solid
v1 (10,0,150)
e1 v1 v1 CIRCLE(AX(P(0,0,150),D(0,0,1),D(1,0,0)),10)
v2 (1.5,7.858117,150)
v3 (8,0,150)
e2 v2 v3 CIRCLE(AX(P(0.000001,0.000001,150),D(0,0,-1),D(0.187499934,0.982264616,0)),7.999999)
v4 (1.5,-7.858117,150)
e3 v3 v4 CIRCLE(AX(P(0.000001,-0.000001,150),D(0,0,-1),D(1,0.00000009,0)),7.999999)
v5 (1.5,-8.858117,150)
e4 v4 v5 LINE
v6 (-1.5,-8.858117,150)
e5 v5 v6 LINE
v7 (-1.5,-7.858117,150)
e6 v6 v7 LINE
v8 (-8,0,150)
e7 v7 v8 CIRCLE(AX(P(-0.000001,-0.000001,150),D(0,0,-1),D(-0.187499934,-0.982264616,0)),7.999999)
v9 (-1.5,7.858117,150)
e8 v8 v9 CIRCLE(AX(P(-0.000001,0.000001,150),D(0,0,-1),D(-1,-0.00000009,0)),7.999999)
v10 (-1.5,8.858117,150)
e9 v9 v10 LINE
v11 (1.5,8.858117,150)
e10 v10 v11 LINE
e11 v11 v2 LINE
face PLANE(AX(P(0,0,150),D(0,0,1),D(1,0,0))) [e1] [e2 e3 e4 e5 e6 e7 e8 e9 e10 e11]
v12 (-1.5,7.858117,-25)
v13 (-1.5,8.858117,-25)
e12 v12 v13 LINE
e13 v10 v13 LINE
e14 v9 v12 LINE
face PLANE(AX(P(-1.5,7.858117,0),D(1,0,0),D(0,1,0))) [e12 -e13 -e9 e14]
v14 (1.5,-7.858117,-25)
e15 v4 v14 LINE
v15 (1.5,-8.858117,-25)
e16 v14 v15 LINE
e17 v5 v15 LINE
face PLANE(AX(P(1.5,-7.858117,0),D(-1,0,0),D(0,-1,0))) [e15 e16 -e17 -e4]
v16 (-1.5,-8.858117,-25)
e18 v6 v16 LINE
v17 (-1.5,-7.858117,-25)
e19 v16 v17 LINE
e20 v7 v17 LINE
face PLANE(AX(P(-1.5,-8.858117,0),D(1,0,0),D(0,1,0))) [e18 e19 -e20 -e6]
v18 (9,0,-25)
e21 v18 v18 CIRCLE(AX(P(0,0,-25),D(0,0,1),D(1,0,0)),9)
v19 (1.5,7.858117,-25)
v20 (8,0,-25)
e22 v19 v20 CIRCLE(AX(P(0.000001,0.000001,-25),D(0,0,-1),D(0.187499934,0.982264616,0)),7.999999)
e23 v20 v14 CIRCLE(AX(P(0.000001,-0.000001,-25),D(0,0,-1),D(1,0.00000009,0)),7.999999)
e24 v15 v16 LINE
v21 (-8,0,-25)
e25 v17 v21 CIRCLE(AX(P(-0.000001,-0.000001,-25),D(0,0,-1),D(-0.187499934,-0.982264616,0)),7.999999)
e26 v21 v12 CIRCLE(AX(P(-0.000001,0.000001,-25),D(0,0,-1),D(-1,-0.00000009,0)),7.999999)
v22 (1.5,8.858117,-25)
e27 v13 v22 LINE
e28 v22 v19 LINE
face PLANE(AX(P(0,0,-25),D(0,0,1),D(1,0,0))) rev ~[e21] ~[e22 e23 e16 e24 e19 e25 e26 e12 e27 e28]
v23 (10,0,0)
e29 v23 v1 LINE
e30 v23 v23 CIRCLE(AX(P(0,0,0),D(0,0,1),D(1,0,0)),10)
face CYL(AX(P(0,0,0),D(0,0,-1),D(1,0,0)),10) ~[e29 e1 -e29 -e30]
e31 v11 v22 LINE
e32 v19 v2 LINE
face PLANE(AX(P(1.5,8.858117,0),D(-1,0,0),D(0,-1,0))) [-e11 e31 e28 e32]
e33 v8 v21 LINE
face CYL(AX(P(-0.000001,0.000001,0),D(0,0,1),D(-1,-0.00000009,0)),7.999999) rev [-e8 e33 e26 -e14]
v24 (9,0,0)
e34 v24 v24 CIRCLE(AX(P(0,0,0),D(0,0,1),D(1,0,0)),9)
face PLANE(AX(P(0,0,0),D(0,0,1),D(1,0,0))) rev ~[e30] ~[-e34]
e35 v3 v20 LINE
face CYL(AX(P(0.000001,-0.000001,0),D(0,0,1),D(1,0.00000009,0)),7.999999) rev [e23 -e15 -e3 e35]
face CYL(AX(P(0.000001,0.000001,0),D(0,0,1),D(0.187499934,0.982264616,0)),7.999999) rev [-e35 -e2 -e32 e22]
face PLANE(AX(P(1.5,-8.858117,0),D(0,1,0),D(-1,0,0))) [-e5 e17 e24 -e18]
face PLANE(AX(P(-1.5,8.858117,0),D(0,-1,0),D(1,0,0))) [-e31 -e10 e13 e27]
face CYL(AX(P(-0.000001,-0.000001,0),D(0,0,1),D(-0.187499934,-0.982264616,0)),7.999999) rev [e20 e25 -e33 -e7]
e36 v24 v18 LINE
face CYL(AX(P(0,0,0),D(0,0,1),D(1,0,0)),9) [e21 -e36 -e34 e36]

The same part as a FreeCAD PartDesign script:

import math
import FreeCAD as App
import Part
import Sketcher
from FreeCAD import Vector
Q = App.Units.Quantity

doc = App.newDocument("Part")
body = doc.addObject("PartDesign::Body", "Body")

# Sketch on XY plane
sketch1 = body.newObject("Sketcher::SketchObject", "Sketch")
sketch1.AttachmentSupport = (doc.getObject("XY_Plane"), [""])
sketch1.MapMode = "FlatFace"
sketch1.addGeometry([
    Part.Circle(Vector(0, 0, 0), Vector(0, 0, 1), 10),  # 0
    Part.LineSegment(Vector(1.5, 8.9, 0), Vector(1.5, 7.9, 0)),  # 1
    Part.ArcOfCircle(Part.Circle(Vector(0, 0, 0), Vector(0, 0, 1), 8), math.radians(0), math.radians(79)),  # 2
    Part.ArcOfCircle(Part.Circle(Vector(0, 0, 0), Vector(0, 0, 1), 8), math.radians(-79), math.radians(0)),  # 3
    Part.LineSegment(Vector(1.5, -7.9, 0), Vector(1.5, -8.9, 0)),  # 4
    Part.LineSegment(Vector(1.5, -8.9, 0), Vector(-1.5, -8.9, 0)),  # 5
    Part.LineSegment(Vector(-1.5, -8.9, 0), Vector(-1.5, -7.9, 0)),  # 6
    Part.ArcOfCircle(Part.Circle(Vector(0, 0, 0), Vector(0, 0, 1), 8), math.radians(180), math.radians(259)),  # 7
    Part.ArcOfCircle(Part.Circle(Vector(0, 0, 0), Vector(0, 0, 1), 8), math.radians(101), math.radians(180)),  # 8
    Part.LineSegment(Vector(-1.5, 7.9, 0), Vector(-1.5, 8.9, 0)),  # 9
    Part.LineSegment(Vector(-1.5, 8.9, 0), Vector(1.5, 8.9, 0)),  # 10
], False)
sketch1.addConstraint([
    Sketcher.Constraint("Coincident", 1, 2, 2, 2),
    Sketcher.Constraint("Tangent", 2, 1, 3, 2),
    Sketcher.Constraint("Coincident", 3, 1, 4, 1),
    Sketcher.Constraint("Coincident", 4, 2, 5, 1),
    Sketcher.Constraint("Coincident", 5, 2, 6, 1),
    Sketcher.Constraint("Coincident", 6, 2, 7, 2),
    Sketcher.Constraint("Tangent", 7, 1, 8, 2),
    Sketcher.Constraint("Coincident", 8, 1, 9, 1),
    Sketcher.Constraint("Coincident", 9, 2, 10, 1),
    Sketcher.Constraint("Coincident", 10, 2, 1, 1),
    Sketcher.Constraint("Vertical", 1),
    Sketcher.Constraint("Vertical", 4),
    Sketcher.Constraint("Horizontal", 5),
    Sketcher.Constraint("Vertical", 6),
    Sketcher.Constraint("Vertical", 9),
    Sketcher.Constraint("Horizontal", 10),
    Sketcher.Constraint("Coincident", 0, 3, -1, 1),
    Sketcher.Constraint("Coincident", 2, 3, -1, 1),
    Sketcher.Constraint("Coincident", 7, 3, -1, 1),
    Sketcher.Constraint("Equal", 2, 3),
    Sketcher.Constraint("Equal", 3, 7),
    Sketcher.Constraint("Equal", 7, 8),
    Sketcher.Constraint("Symmetric", 4, 2, 9, 2, -1, 1),
    Sketcher.Constraint("PointOnObject", 2, 1, -1),
    Sketcher.Constraint("PointOnObject", 7, 1, -1),
    Sketcher.Constraint("Horizontal", 3, 1, 6, 2),
    Sketcher.Constraint("Horizontal", 1, 2, 8, 1),
    Sketcher.Constraint("Diameter", 0, Q("20 mm")),
    Sketcher.Constraint("Radius", 2, Q("7.999999 mm")),
    Sketcher.Constraint("DistanceX", 5, 2, 5, 1, Q("3 mm")),
    Sketcher.Constraint("DistanceY", 1, 2, 1, 1, Q("1 mm")),
])
pad1 = body.newObject("PartDesign::Pad", "Pad")
pad1.Profile = sketch1
pad1.Length = 150

# Sketch on XY plane
sketch2 = body.newObject("Sketcher::SketchObject", "Sketch001")
sketch2.AttachmentSupport = (doc.getObject("XY_Plane"), [""])
sketch2.MapMode = "FlatFace"
sketch2.addGeometry([
    Part.Circle(Vector(0, 0, 0), Vector(0, 0, 1), 9),  # 0
    Part.LineSegment(Vector(1.5, 8.9, 0), Vector(1.5, 7.9, 0)),  # 1
    Part.ArcOfCircle(Part.Circle(Vector(0, 0, 0), Vector(0, 0, 1), 8), math.radians(0), math.radians(79)),  # 2
    Part.ArcOfCircle(Part.Circle(Vector(0, 0, 0), Vector(0, 0, 1), 8), math.radians(-79), math.radians(0)),  # 3
    Part.LineSegment(Vector(1.5, -7.9, 0), Vector(1.5, -8.9, 0)),  # 4
    Part.LineSegment(Vector(1.5, -8.9, 0), Vector(-1.5, -8.9, 0)),  # 5
    Part.LineSegment(Vector(-1.5, -8.9, 0), Vector(-1.5, -7.9, 0)),  # 6
    Part.ArcOfCircle(Part.Circle(Vector(0, 0, 0), Vector(0, 0, 1), 8), math.radians(180), math.radians(259)),  # 7
    Part.ArcOfCircle(Part.Circle(Vector(0, 0, 0), Vector(0, 0, 1), 8), math.radians(101), math.radians(180)),  # 8
    Part.LineSegment(Vector(-1.5, 7.9, 0), Vector(-1.5, 8.9, 0)),  # 9
    Part.LineSegment(Vector(-1.5, 8.9, 0), Vector(1.5, 8.9, 0)),  # 10
], False)
sketch2.addConstraint([
    Sketcher.Constraint("Coincident", 1, 2, 2, 2),
    Sketcher.Constraint("Tangent", 2, 1, 3, 2),
    Sketcher.Constraint("Coincident", 3, 1, 4, 1),
    Sketcher.Constraint("Coincident", 4, 2, 5, 1),
    Sketcher.Constraint("Coincident", 5, 2, 6, 1),
    Sketcher.Constraint("Coincident", 6, 2, 7, 2),
    Sketcher.Constraint("Tangent", 7, 1, 8, 2),
    Sketcher.Constraint("Coincident", 8, 1, 9, 1),
    Sketcher.Constraint("Coincident", 9, 2, 10, 1),
    Sketcher.Constraint("Coincident", 10, 2, 1, 1),
    Sketcher.Constraint("Vertical", 1),
    Sketcher.Constraint("Vertical", 4),
    Sketcher.Constraint("Horizontal", 5),
    Sketcher.Constraint("Vertical", 6),
    Sketcher.Constraint("Vertical", 9),
    Sketcher.Constraint("Horizontal", 10),
    Sketcher.Constraint("Coincident", 0, 3, -1, 1),
    Sketcher.Constraint("Coincident", 2, 3, -1, 1),
    Sketcher.Constraint("Coincident", 7, 3, -1, 1),
    Sketcher.Constraint("Equal", 2, 3),
    Sketcher.Constraint("Equal", 3, 7),
    Sketcher.Constraint("Equal", 7, 8),
    Sketcher.Constraint("Symmetric", 4, 2, 9, 2, -1, 1),
    Sketcher.Constraint("PointOnObject", 2, 1, -1),
    Sketcher.Constraint("PointOnObject", 7, 1, -1),
    Sketcher.Constraint("Horizontal", 3, 1, 6, 2),
    Sketcher.Constraint("Horizontal", 1, 2, 8, 1),
    Sketcher.Constraint("Diameter", 0, Q("18 mm")),
    Sketcher.Constraint("Radius", 2, Q("7.999999 mm")),
    Sketcher.Constraint("DistanceX", 5, 2, 5, 1, Q("3 mm")),
    Sketcher.Constraint("DistanceY", 1, 2, 1, 1, Q("1 mm")),
])
pad2 = body.newObject("PartDesign::Pad", "Pad001")
pad2.Profile = sketch2
pad2.Length = 25
pad2.Reversed = True

doc.recompute()
